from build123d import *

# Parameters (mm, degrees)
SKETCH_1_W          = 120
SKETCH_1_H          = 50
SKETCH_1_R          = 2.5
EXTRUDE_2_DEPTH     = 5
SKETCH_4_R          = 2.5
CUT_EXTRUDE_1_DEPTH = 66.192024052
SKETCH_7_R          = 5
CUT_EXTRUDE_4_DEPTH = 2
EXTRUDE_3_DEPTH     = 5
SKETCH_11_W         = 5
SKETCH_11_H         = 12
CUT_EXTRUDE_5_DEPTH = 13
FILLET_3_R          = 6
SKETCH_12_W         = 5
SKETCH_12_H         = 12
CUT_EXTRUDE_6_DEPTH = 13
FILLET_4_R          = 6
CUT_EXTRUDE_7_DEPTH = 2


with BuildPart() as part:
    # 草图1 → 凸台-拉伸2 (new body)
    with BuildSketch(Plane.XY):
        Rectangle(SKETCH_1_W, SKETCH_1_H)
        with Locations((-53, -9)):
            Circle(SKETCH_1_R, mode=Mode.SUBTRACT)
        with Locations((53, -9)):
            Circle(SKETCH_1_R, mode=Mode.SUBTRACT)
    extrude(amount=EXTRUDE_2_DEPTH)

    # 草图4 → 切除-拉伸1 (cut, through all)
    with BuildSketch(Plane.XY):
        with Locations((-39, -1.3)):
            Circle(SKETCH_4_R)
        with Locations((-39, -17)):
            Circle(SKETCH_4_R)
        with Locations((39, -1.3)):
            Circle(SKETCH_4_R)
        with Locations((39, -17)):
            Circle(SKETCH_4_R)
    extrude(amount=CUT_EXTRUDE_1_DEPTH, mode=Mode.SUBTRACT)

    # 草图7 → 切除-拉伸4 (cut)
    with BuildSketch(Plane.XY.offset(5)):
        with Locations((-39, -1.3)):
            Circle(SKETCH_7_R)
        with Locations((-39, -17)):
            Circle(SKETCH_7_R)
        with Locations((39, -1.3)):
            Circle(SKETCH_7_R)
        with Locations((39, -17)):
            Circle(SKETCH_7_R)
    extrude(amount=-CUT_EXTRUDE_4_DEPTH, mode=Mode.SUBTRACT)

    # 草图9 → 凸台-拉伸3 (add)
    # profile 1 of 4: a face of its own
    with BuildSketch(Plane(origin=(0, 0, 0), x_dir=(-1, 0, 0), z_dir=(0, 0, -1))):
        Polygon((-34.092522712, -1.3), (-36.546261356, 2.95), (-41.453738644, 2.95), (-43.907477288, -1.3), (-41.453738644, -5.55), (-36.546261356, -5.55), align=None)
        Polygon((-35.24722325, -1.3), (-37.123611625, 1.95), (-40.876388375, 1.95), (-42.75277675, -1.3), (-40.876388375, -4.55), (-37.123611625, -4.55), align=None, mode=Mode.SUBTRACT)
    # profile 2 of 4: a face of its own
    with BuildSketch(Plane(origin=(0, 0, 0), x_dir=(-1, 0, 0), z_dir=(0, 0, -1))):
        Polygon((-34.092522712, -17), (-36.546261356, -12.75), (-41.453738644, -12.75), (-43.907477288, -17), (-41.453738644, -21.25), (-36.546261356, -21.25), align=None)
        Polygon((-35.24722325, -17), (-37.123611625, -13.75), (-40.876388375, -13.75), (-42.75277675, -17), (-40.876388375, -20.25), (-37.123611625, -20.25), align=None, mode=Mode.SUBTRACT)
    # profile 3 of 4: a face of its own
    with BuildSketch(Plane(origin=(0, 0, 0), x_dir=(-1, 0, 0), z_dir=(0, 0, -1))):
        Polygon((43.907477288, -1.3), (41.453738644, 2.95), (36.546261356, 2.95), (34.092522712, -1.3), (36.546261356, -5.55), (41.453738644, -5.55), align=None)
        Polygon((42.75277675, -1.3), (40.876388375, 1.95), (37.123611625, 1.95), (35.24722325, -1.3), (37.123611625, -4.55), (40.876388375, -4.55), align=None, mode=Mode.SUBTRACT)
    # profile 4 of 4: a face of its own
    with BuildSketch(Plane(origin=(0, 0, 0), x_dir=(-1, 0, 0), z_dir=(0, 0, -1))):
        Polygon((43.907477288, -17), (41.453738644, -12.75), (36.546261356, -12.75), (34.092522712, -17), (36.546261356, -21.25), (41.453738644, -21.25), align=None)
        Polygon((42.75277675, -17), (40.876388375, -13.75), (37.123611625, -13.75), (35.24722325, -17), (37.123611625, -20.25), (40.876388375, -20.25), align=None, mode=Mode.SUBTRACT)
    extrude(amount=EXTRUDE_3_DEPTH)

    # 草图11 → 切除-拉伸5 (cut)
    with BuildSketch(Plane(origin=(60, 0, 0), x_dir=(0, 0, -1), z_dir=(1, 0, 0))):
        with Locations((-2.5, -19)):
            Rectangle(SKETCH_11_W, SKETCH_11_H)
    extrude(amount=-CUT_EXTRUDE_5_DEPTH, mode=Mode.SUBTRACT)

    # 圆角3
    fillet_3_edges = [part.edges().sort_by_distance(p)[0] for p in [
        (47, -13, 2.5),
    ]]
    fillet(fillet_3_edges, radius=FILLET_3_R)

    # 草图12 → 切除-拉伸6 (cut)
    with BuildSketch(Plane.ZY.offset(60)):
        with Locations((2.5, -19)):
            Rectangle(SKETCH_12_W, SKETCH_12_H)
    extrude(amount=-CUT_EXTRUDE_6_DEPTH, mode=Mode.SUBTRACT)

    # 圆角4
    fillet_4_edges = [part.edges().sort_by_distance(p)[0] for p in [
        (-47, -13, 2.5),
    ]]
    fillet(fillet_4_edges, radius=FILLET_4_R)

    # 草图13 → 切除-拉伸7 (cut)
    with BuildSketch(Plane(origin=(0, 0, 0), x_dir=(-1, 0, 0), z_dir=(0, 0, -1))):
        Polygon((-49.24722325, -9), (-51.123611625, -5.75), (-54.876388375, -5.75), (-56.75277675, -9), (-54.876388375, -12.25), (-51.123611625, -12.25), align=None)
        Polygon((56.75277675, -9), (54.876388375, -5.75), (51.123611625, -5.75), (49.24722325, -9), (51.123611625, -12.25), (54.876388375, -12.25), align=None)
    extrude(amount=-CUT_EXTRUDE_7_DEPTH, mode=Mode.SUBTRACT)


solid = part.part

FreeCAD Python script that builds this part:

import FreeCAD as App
import Part
import Sketcher
Q = App.Units.Quantity


def edges_at(feature, points):
    """Names of the edges that pass closest to the given points."""
    edges = feature.Shape.Edges
    near = lambda p: min(range(len(edges)), key=lambda i: edges[i].distToShape(Part.Vertex(*p))[0])
    return sorted({f"Edge{near(p) + 1}" for p in points})

doc = App.newDocument("Part")
params = doc.addObject("Spreadsheet::Sheet", "Params")
for row, (alias, value) in enumerate([
    ("sketch1_diameter", "5 mm"),
    ("sketch1_width", "120 mm"),
    ("sketch1_height", "50 mm"),
    ("pad1_length", "5 mm"),
    ("sketch2_diameter", "5 mm"),
    ("sketch3_diameter", "10 mm"),
    ("pocket2_length", "2 mm"),
    ("pad2_length", "5 mm"),
    ("sketch5_width", "12 mm"),
    ("sketch5_height", "5 mm"),
    ("pocket3_length", "13 mm"),
    ("fillet_radius", "6 mm"),
    ("sketch6_width", "12 mm"),
    ("sketch6_height", "5 mm"),
    ("pocket4_length", "13 mm"),
    ("fillet2_radius", "6 mm"),
    ("pocket5_length", "2 mm"),
], start=1):
    params.set(f"A{row}", alias)
    params.set(f"B{row}", "=" + value)
    params.setAlias(f"B{row}", alias)

body = doc.addObject("PartDesign::Body", "Body")

# Sketch on XY plane
sketch1 = doc.addObject("Sketcher::SketchObject", "Sketch")
body.addObject(sketch1)
sketch1.AttachmentSupport = (doc.XY_Plane, [""])
sketch1.MapMode = "FlatFace"
sketch1.addGeometry(Part.LineSegment(App.Vector(-60, 25, 0), App.Vector(-60, -25, 0)), False)
sketch1.addGeometry(Part.LineSegment(App.Vector(-60, -25, 0), App.Vector(60, -25, 0)), False)
sketch1.addGeometry(Part.LineSegment(App.Vector(60, -25, 0), App.Vector(60, 25, 0)), False)
sketch1.addGeometry(Part.LineSegment(App.Vector(60, 25, 0), App.Vector(-60, 25, 0)), False)
sketch1.addGeometry(Part.Circle(App.Vector(-53, -9, 0), App.Vector(0, 0, 1), 2.5), False)
sketch1.addGeometry(Part.Circle(App.Vector(53, -9, 0), App.Vector(0, 0, 1), 2.5), False)
sketch1.addConstraint(Sketcher.Constraint("Coincident", 0, 2, 1, 1))
sketch1.addConstraint(Sketcher.Constraint("Coincident", 1, 2, 2, 1))
sketch1.addConstraint(Sketcher.Constraint("Coincident", 2, 2, 3, 1))
sketch1.addConstraint(Sketcher.Constraint("Coincident", 3, 2, 0, 1))
sketch1.addConstraint(Sketcher.Constraint("Vertical", 0))
sketch1.addConstraint(Sketcher.Constraint("Horizontal", 1))
sketch1.addConstraint(Sketcher.Constraint("Vertical", 2))
sketch1.addConstraint(Sketcher.Constraint("Horizontal", 3))
sketch1.addConstraint(Sketcher.Constraint("Equal", 4, 5))
sketch1.addConstraint(Sketcher.Constraint("Symmetric", 0, 2, 2, 2, -1, 1))
sketch1.addConstraint(Sketcher.Constraint("Symmetric", 4, 3, 5, 3, -2))
sketch1.addConstraint(Sketcher.Constraint("Diameter", 4, 5.0))
sketch1.addConstraint(Sketcher.Constraint("DistanceX", 1, 1, 1, 2, 120.0))
sketch1.addConstraint(Sketcher.Constraint("DistanceY", 0, 2, 0, 1, 50.0))
sketch1.addConstraint(Sketcher.Constraint("DistanceX", 4, 3, -1, 1, 53.0))
sketch1.addConstraint(Sketcher.Constraint("DistanceY", 4, 3, -1, 1, 9.0))
sketch1.setExpression("Constraints[11]", "Params.sketch1_diameter")
sketch1.setExpression("Constraints[12]", "Params.sketch1_width")
sketch1.setExpression("Constraints[13]", "Params.sketch1_height")
pad1 = doc.addObject("PartDesign::Pad", "Pad")
body.addObject(pad1)
pad1.Profile = sketch1
pad1.setExpression("Length", "Params.pad1_length")

# Sketch on XY plane
sketch2 = doc.addObject("Sketcher::SketchObject", "Sketch001")
body.addObject(sketch2)
sketch2.AttachmentSupport = (doc.XY_Plane, [""])
sketch2.MapMode = "FlatFace"
sketch2.addGeometry(Part.Circle(App.Vector(-39, -1.3, 0), App.Vector(0, 0, 1), 2.5), False)
sketch2.addGeometry(Part.Circle(App.Vector(-39, -17, 0), App.Vector(0, 0, 1), 2.5), False)
sketch2.addGeometry(Part.Circle(App.Vector(39, -1.3, 0), App.Vector(0, 0, 1), 2.5), False)
sketch2.addGeometry(Part.Circle(App.Vector(39, -17, 0), App.Vector(0, 0, 1), 2.5), False)
sketch2.addConstraint(Sketcher.Constraint("Equal", 0, 1))
sketch2.addConstraint(Sketcher.Constraint("Equal", 1, 2))
sketch2.addConstraint(Sketcher.Constraint("Equal", 2, 3))
sketch2.addConstraint(Sketcher.Constraint("Symmetric", 0, 3, 2, 3, -2))
sketch2.addConstraint(Sketcher.Constraint("Symmetric", 1, 3, 3, 3, -2))
sketch2.addConstraint(Sketcher.Constraint("Vertical", 0, 3, 1, 3))
sketch2.addConstraint(Sketcher.Constraint("Diameter", 0, 5.0))
sketch2.addConstraint(Sketcher.Constraint("DistanceX", 0, 3, -1, 1, 39.0))
sketch2.addConstraint(Sketcher.Constraint("DistanceY", 1, 3, -1, 1, 17.0))
sketch2.addConstraint(Sketcher.Constraint("DistanceY", 0, 3, -1, 1, 1.3))
sketch2.setExpression("Constraints[6]", "Params.sketch2_diameter")
pocket1 = doc.addObject("PartDesign::Pocket", "Pocket")
body.addObject(pocket1)
pocket1.Profile = sketch2
pocket1.Type = "ThroughAll"
pocket1.Reversed = True

# Sketch on XY plane
sketch3 = doc.addObject("Sketcher::SketchObject", "Sketch002")
body.addObject(sketch3)
sketch3.AttachmentSupport = (doc.XY_Plane, [""])
sketch3.MapMode = "FlatFace"
sketch3.AttachmentOffset = App.Placement(App.Vector(0, 0, 5), App.Rotation())
sketch3.addGeometry(Part.Circle(App.Vector(-39, -1, 0), App.Vector(0, 0, 1), 5), False)
sketch3.addGeometry(Part.Circle(App.Vector(-39, -17, 0), App.Vector(0, 0, 1), 5), False)
sketch3.addGeometry(Part.Circle(App.Vector(39, -1, 0), App.Vector(0, 0, 1), 5), False)
sketch3.addGeometry(Part.Circle(App.Vector(39, -17, 0), App.Vector(0, 0, 1), 5), False)
sketch3.addConstraint(Sketcher.Constraint("Equal", 0, 1))
sketch3.addConstraint(Sketcher.Constraint("Equal", 1, 2))
sketch3.addConstraint(Sketcher.Constraint("Equal", 2, 3))
sketch3.addConstraint(Sketcher.Constraint("Symmetric", 0, 3, 2, 3, -2))
sketch3.addConstraint(Sketcher.Constraint("Symmetric", 1, 3, 3, 3, -2))
sketch3.addConstraint(Sketcher.Constraint("Vertical", 0, 3, 1, 3))
sketch3.addConstraint(Sketcher.Constraint("Diameter", 0, 10.0))
sketch3.addConstraint(Sketcher.Constraint("DistanceX", 0, 3, -1, 1, 39.0))
sketch3.addConstraint(Sketcher.Constraint("DistanceY", 1, 3, -1, 1, 17.0))
sketch3.addConstraint(Sketcher.Constraint("DistanceY", 0, 3, -1, 1, 1.3))
sketch3.setExpression("Constraints[6]", "Params.sketch3_diameter")
pocket2 = doc.addObject("PartDesign::Pocket", "Pocket001")
body.addObject(pocket2)
pocket2.Profile = sketch3
pocket2.setExpression("Length", "Params.pocket2_length")

# Sketch on XY plane
sketch4 = doc.addObject("Sketcher::SketchObject", "Sketch003")
body.addObject(sketch4)
sketch4.AttachmentSupport = (doc.XY_Plane, [""])
sketch4.MapMode = "FlatFace"
sketch4.addGeometry(Part.LineSegment(App.Vector(34.1, -1.3, 0), App.Vector(36.5, 3, 0)), False)
sketch4.addGeometry(Part.LineSegment(App.Vector(36.5, 3, 0), App.Vector(41.5, 3, 0)), False)
sketch4.addGeometry(Part.LineSegment(App.Vector(41.5, 3, 0), App.Vector(43.9, -1.3, 0)), False)
sketch4.addGeometry(Part.LineSegment(App.Vector(43.9, -1.3, 0), App.Vector(41.5, -5.5, 0)), False)
sketch4.addGeometry(Part.LineSegment(App.Vector(41.5, -5.5, 0), App.Vector(36.5, -5.5, 0)), False)
sketch4.addGeometry(Part.LineSegment(App.Vector(36.5, -5.5, 0), App.Vector(34.1, -1.3, 0)), False)
sketch4.addGeometry(Part.LineSegment(App.Vector(37.1, 1.9, 0), App.Vector(35.2, -1.3, 0)), False)
sketch4.addGeometry(Part.LineSegment(App.Vector(35.2, -1.3, 0), App.Vector(37.1, -4.5, 0)), False)
sketch4.addGeometry(Part.LineSegment(App.Vector(37.1, -4.5, 0), App.Vector(40.9, -4.5, 0)), False)
sketch4.addGeometry(Part.LineSegment(App.Vector(40.9, -4.5, 0), App.Vector(42.8, -1.3, 0)), False)
sketch4.addGeometry(Part.LineSegment(App.Vector(42.8, -1.3, 0), App.Vector(40.9, 1.9, 0)), False)
sketch4.addGeometry(Part.LineSegment(App.Vector(40.9, 1.9, 0), App.Vector(37.1, 1.9, 0)), False)
sketch4.addGeometry(Part.LineSegment(App.Vector(34.1, -17, 0), App.Vector(36.5, -12.8, 0)), False)
sketch4.addGeometry(Part.LineSegment(App.Vector(36.5, -12.8, 0), App.Vector(41.5, -12.8, 0)), False)
sketch4.addGeometry(Part.LineSegment(App.Vector(41.5, -12.8, 0), App.Vector(43.9, -17, 0)), False)
sketch4.addGeometry(Part.LineSegment(App.Vector(43.9, -17, 0), App.Vector(41.5, -21.2, 0)), False)
sketch4.addGeometry(Part.LineSegment(App.Vector(41.5, -21.2, 0), App.Vector(36.5, -21.2, 0)), False)
sketch4.addGeometry(Part.LineSegment(App.Vector(36.5, -21.2, 0), App.Vector(34.1, -17, 0)), False)
sketch4.addGeometry(Part.LineSegment(App.Vector(37.1, -13.8, 0), App.Vector(35.2, -17, 0)), False)
sketch4.addGeometry(Part.LineSegment(App.Vector(35.2, -17, 0), App.Vector(37.1, -20.2, 0)), False)
sketch4.addGeometry(Part.LineSegment(App.Vector(37.1, -20.2, 0), App.Vector(40.9, -20.2, 0)), False)
sketch4.addGeometry(Part.LineSegment(App.Vector(40.9, -20.2, 0), App.Vector(42.8, -17, 0)), False)
sketch4.addGeometry(Part.LineSegment(App.Vector(42.8, -17, 0), App.Vector(40.9, -13.8, 0)), False)
sketch4.addGeometry(Part.LineSegment(App.Vector(40.9, -13.8, 0), App.Vector(37.1, -13.8, 0)), False)
sketch4.addGeometry(Part.LineSegment(App.Vector(-43.9, -1.3, 0), App.Vector(-41.5, 3, 0)), False)
sketch4.addGeometry(Part.LineSegment(App.Vector(-41.5, 3, 0), App.Vector(-36.5, 3, 0)), False)
sketch4.addGeometry(Part.LineSegment(App.Vector(-36.5, 3, 0), App.Vector(-34.1, -1.3, 0)), False)
sketch4.addGeometry(Part.LineSegment(App.Vector(-34.1, -1.3, 0), App.Vector(-36.5, -5.5, 0)), False)
sketch4.addGeometry(Part.LineSegment(App.Vector(-36.5, -5.5, 0), App.Vector(-41.5, -5.5, 0)), False)
sketch4.addGeometry(Part.LineSegment(App.Vector(-41.5, -5.5, 0), App.Vector(-43.9, -1.3, 0)), False)
sketch4.addGeometry(Part.LineSegment(App.Vector(-40.9, 1.9, 0), App.Vector(-42.8, -1.3, 0)), False)
sketch4.addGeometry(Part.LineSegment(App.Vector(-42.8, -1.3, 0), App.Vector(-40.9, -4.5, 0)), False)
sketch4.addGeometry(Part.LineSegment(App.Vector(-40.9, -4.5, 0), App.Vector(-37.1, -4.5, 0)), False)
sketch4.addGeometry(Part.LineSegment(App.Vector(-37.1, -4.5, 0), App.Vector(-35.2, -1.3, 0)), False)
sketch4.addGeometry(Part.LineSegment(App.Vector(-35.2, -1.3, 0), App.Vector(-37.1, 1.9, 0)), False)
sketch4.addGeometry(Part.LineSegment(App.Vector(-37.1, 1.9, 0), App.Vector(-40.9, 1.9, 0)), False)
sketch4.addGeometry(Part.LineSegment(App.Vector(-43.9, -17, 0), App.Vector(-41.5, -12.8, 0)), False)
sketch4.addGeometry(Part.LineSegment(App.Vector(-41.5, -12.8, 0), App.Vector(-36.5, -12.8, 0)), False)
sketch4.addGeometry(Part.LineSegment(App.Vector(-36.5, -12.8, 0), App.Vector(-34.1, -17, 0)), False)
sketch4.addGeometry(Part.LineSegment(App.Vector(-34.1, -17, 0), App.Vector(-36.5, -21.2, 0)), False)
sketch4.addGeometry(Part.LineSegment(App.Vector(-36.5, -21.2, 0), App.Vector(-41.5, -21.2, 0)), False)
sketch4.addGeometry(Part.LineSegment(App.Vector(-41.5, -21.2, 0), App.Vector(-43.9, -17, 0)), False)
sketch4.addGeometry(Part.LineSegment(App.Vector(-40.9, -13.8, 0), App.Vector(-42.8, -17, 0)), False)
sketch4.addGeometry(Part.LineSegment(App.Vector(-42.8, -17, 0), App.Vector(-40.9, -20.2, 0)), False)
sketch4.addGeometry(Part.LineSegment(App.Vector(-40.9, -20.2, 0), App.Vector(-37.1, -20.2, 0)), False)
sketch4.addGeometry(Part.LineSegment(App.Vector(-37.1, -20.2, 0), App.Vector(-35.2, -17, 0)), False)
sketch4.addGeometry(Part.LineSegment(App.Vector(-35.2, -17, 0), App.Vector(-37.1, -13.8, 0)), False)
sketch4.addGeometry(Part.LineSegment(App.Vector(-37.1, -13.8, 0), App.Vector(-40.9, -13.8, 0)), False)
sketch4.addConstraint(Sketcher.Constraint("Coincident", 0, 2, 1, 1))
sketch4.addConstraint(Sketcher.Constraint("Coincident", 1, 2, 2, 1))
sketch4.addConstraint(Sketcher.Constraint("Coincident", 2, 2, 3, 1))
sketch4.addConstraint(Sketcher.Constraint("Coincident", 3, 2, 4, 1))
sketch4.addConstraint(Sketcher.Constraint("Coincident", 4, 2, 5, 1))
sketch4.addConstraint(Sketcher.Constraint("Coincident", 5, 2, 0, 1))
sketch4.addConstraint(Sketcher.Constraint("Coincident", 6, 2, 7, 1))
sketch4.addConstraint(Sketcher.Constraint("Coincident", 7, 2, 8, 1))
sketch4.addConstraint(Sketcher.Constraint("Coincident", 8, 2, 9, 1))
sketch4.addConstraint(Sketcher.Constraint("Coincident", 9, 2, 10, 1))
sketch4.addConstraint(Sketcher.Constraint("Coincident", 10, 2, 11, 1))
sketch4.addConstraint(Sketcher.Constraint("Coincident", 11, 2, 6, 1))
sketch4.addConstraint(Sketcher.Constraint("Coincident", 12, 2, 13, 1))
sketch4.addConstraint(Sketcher.Constraint("Coincident", 13, 2, 14, 1))
sketch4.addConstraint(Sketcher.Constraint("Coincident", 14, 2, 15, 1))
sketch4.addConstraint(Sketcher.Constraint("Coincident", 15, 2, 16, 1))
sketch4.addConstraint(Sketcher.Constraint("Coincident", 16, 2, 17, 1))
sketch4.addConstraint(Sketcher.Constraint("Coincident", 17, 2, 12, 1))
sketch4.addConstraint(Sketcher.Constraint("Coincident", 18, 2, 19, 1))
sketch4.addConstraint(Sketcher.Constraint("Coincident", 19, 2, 20, 1))
sketch4.addConstraint(Sketcher.Constraint("Coincident", 20, 2, 21, 1))
sketch4.addConstraint(Sketcher.Constraint("Coincident", 21, 2, 22, 1))
sketch4.addConstraint(Sketcher.Constraint("Coincident", 22, 2, 23, 1))
sketch4.addConstraint(Sketcher.Constraint("Coincident", 23, 2, 18, 1))
sketch4.addConstraint(Sketcher.Constraint("Coincident", 24, 2, 25, 1))
sketch4.addConstraint(Sketcher.Constraint("Coincident", 25, 2, 26, 1))
sketch4.addConstraint(Sketcher.Constraint("Coincident", 26, 2, 27, 1))
sketch4.addConstraint(Sketcher.Constraint("Coincident", 27, 2, 28, 1))
sketch4.addConstraint(Sketcher.Constraint("Coincident", 28, 2, 29, 1))
sketch4.addConstraint(Sketcher.Constraint("Coincident", 29, 2, 24, 1))
sketch4.addConstraint(Sketcher.Constraint("Coincident", 30, 2, 31, 1))
sketch4.addConstraint(Sketcher.Constraint("Coincident", 31, 2, 32, 1))
sketch4.addConstraint(Sketcher.Constraint("Coincident", 32, 2, 33, 1))
sketch4.addConstraint(Sketcher.Constraint("Coincident", 33, 2, 34, 1))
sketch4.addConstraint(Sketcher.Constraint("Coincident", 34, 2, 35, 1))
sketch4.addConstraint(Sketcher.Constraint("Coincident", 35, 2, 30, 1))
sketch4.addConstraint(Sketcher.Constraint("Coincident", 36, 2, 37, 1))
sketch4.addConstraint(Sketcher.Constraint("Coincident", 37, 2, 38, 1))
sketch4.addConstraint(Sketcher.Constraint("Coincident", 38, 2, 39, 1))
sketch4.addConstraint(Sketcher.Constraint("Coincident", 39, 2, 40, 1))
sketch4.addConstraint(Sketcher.Constraint("Coincident", 40, 2, 41, 1))
sketch4.addConstraint(Sketcher.Constraint("Coincident", 41, 2, 36, 1))
sketch4.addConstraint(Sketcher.Constraint("Coincident", 42, 2, 43, 1))
sketch4.addConstraint(Sketcher.Constraint("Coincident", 43, 2, 44, 1))
sketch4.addConstraint(Sketcher.Constraint("Coincident", 44, 2, 45, 1))
sketch4.addConstraint(Sketcher.Constraint("Coincident", 45, 2, 46, 1))
sketch4.addConstraint(Sketcher.Constraint("Coincident", 46, 2, 47, 1))
sketch4.addConstraint(Sketcher.Constraint("Coincident", 47, 2, 42, 1))
sketch4.addConstraint(Sketcher.Constraint("Horizontal", 1))
sketch4.addConstraint(Sketcher.Constraint("Horizontal", 4))
sketch4.addConstraint(Sketcher.Constraint("Horizontal", 8))
sketch4.addConstraint(Sketcher.Constraint("Horizontal", 11))
sketch4.addConstraint(Sketcher.Constraint("Horizontal", 13))
sketch4.addConstraint(Sketcher.Constraint("Horizontal", 16))
sketch4.addConstraint(Sketcher.Constraint("Horizontal", 20))
sketch4.addConstraint(Sketcher.Constraint("Horizontal", 23))
sketch4.addConstraint(Sketcher.Constraint("Horizontal", 25))
sketch4.addConstraint(Sketcher.Constraint("Horizontal", 28))
sketch4.addConstraint(Sketcher.Constraint("Horizontal", 32))
sketch4.addConstraint(Sketcher.Constraint("Horizontal", 35))
sketch4.addConstraint(Sketcher.Constraint("Horizontal", 37))
sketch4.addConstraint(Sketcher.Constraint("Horizontal", 40))
sketch4.addConstraint(Sketcher.Constraint("Horizontal", 44))
sketch4.addConstraint(Sketcher.Constraint("Horizontal", 47))
sketch4.addConstraint(Sketcher.Constraint("Symmetric", 1, 2, 24, 2, -2))
sketch4.addConstraint(Sketcher.Constraint("Symmetric", 5, 2, 26, 2, -2))
sketch4.addConstraint(Sketcher.Constraint("Symmetric", 4, 2, 27, 2, -2))
sketch4.addConstraint(Sketcher.Constraint("Symmetric", 2, 2, 29, 2, -2))
sketch4.addConstraint(Sketcher.Constraint("Symmetric", 9, 2, 30, 2, -2))
sketch4.addConstraint(Sketcher.Constraint("Symmetric", 8, 2, 31, 2, -2))
sketch4.addConstraint(Sketcher.Constraint("Symmetric", 6, 2, 33, 2, -2))
sketch4.addConstraint(Sketcher.Constraint("Symmetric", 11, 2, 34, 2, -2))
sketch4.addConstraint(Sketcher.Constraint("Symmetric", 13, 2, 36, 2, -2))
sketch4.addConstraint(Sketcher.Constraint("Symmetric", 17, 2, 38, 2, -2))
sketch4.addConstraint(Sketcher.Constraint("Symmetric", 16, 2, 39, 2, -2))
sketch4.addConstraint(Sketcher.Constraint("Symmetric", 14, 2, 41, 2, -2))
sketch4.addConstraint(Sketcher.Constraint("Symmetric", 21, 2, 42, 2, -2))
sketch4.addConstraint(Sketcher.Constraint("Symmetric", 20, 2, 43, 2, -2))
sketch4.addConstraint(Sketcher.Constraint("Symmetric", 18, 2, 45, 2, -2))
sketch4.addConstraint(Sketcher.Constraint("Symmetric", 23, 2, 46, 2, -2))
sketch4.addConstraint(Sketcher.Constraint("Parallel", 0, 3))
sketch4.addConstraint(Sketcher.Constraint("Parallel", 2, 5))
sketch4.addConstraint(Sketcher.Constraint("Parallel", 3, 6))
sketch4.addConstraint(Sketcher.Constraint("Parallel", 5, 7))
sketch4.addConstraint(Sketcher.Constraint("Parallel", 6, 9))
sketch4.addConstraint(Sketcher.Constraint("Parallel", 7, 10))
sketch4.addConstraint(Sketcher.Constraint("Parallel", 9, 12))
sketch4.addConstraint(Sketcher.Constraint("Parallel", 10, 14))
sketch4.addConstraint(Sketcher.Constraint("Parallel", 12, 15))
sketch4.addConstraint(Sketcher.Constraint("Parallel", 14, 17))
sketch4.addConstraint(Sketcher.Constraint("Parallel", 15, 18))
sketch4.addConstraint(Sketcher.Constraint("Parallel", 17, 19))
sketch4.addConstraint(Sketcher.Constraint("Parallel", 18, 21))
sketch4.addConstraint(Sketcher.Constraint("Parallel", 19, 22))
sketch4.addConstraint(Sketcher.Constraint("Parallel", 21, 24))
sketch4.addConstraint(Sketcher.Constraint("Parallel", 22, 26))
sketch4.addConstraint(Sketcher.Constraint("Parallel", 26, 29))
sketch4.addConstraint(Sketcher.Constraint("Parallel", 27, 30))
sketch4.addConstraint(Sketcher.Constraint("Parallel", 30, 33))
sketch4.addConstraint(Sketcher.Constraint("Parallel", 34, 38))
sketch4.addConstraint(Sketcher.Constraint("Parallel", 38, 41))
sketch4.addConstraint(Sketcher.Constraint("Parallel", 39, 42))
sketch4.addConstraint(Sketcher.Constraint("Parallel", 42, 45))
sketch4.addConstraint(Sketcher.Constraint("Horizontal", 2, 2, 5, 2))
sketch4.addConstraint(Sketcher.Constraint("Horizontal", 5, 2, 6, 2))
sketch4.addConstraint(Sketcher.Constraint("Horizontal", 6, 2, 9, 2))
sketch4.addConstraint(Sketcher.Constraint("Horizontal", 14, 2, 17, 2))
sketch4.addConstraint(Sketcher.Constraint("Horizontal", 17, 2, 18, 2))
sketch4.addConstraint(Sketcher.Constraint("Horizontal", 18, 2, 21, 2))
sketch4.addConstraint(Sketcher.Constraint("Vertical", 1, 2, 3, 2))
sketch4.addConstraint(Sketcher.Constraint("Vertical", 8, 2, 10, 2))
sketch4.addConstraint(Sketcher.Constraint("Vertical", 4, 2, 12, 2))
sketch4.addConstraint(Sketcher.Constraint("Vertical", 3, 2, 13, 2))
sketch4.addConstraint(Sketcher.Constraint("Vertical", 2, 2, 14, 2))
sketch4.addConstraint(Sketcher.Constraint("Vertical", 13, 2, 15, 2))
sketch4.addConstraint(Sketcher.Constraint("Vertical", 6, 2, 18, 2))
sketch4.addConstraint(Sketcher.Constraint("Vertical", 11, 2, 19, 2))
sketch4.addConstraint(Sketcher.Constraint("Vertical", 10, 2, 20, 2))
sketch4.addConstraint(Sketcher.Constraint("Vertical", 20, 2, 22, 2))
sketch4.addConstraint(Sketcher.Constraint("Angle", 0, Q("60 deg")))
sketch4.addConstraint(Sketcher.Constraint("DistanceY", 14, 2, -1, 1, 17.0))
sketch4.addConstraint(Sketcher.Constraint("DistanceY", 4, 2, 7, 2, 1.0))
sketch4.addConstraint(Sketcher.Constraint("DistanceX", 24, 2, 0, 2, 78.0))
sketch4.addConstraint(Sketcher.Constraint("DistanceY", 2, 2, -1, 1, 1.3))
sketch4.addConstraint(Sketcher.Constraint("DistanceY", 3, 2, 1, 2, 8.5))
sketch4.addConstraint(Sketcher.Constraint("DistanceX", 5, 2, 6, 2, 1.154701))
sketch4.addConstraint(Sketcher.Constraint("DistanceX", 9, 2, 2, 2, 1.154701))
sketch4.addConstraint(Sketcher.Constraint("DistanceX", 1, 1, 1, 2, 4.907477))
pad2 = doc.addObject("PartDesign::Pad", "Pad001")
body.addObject(pad2)
pad2.Profile = sketch4
pad2.setExpression("Length", "Params.pad2_length")
pad2.Reversed = True

# Sketch on YZ plane
sketch5 = doc.addObject("Sketcher::SketchObject", "Sketch004")
body.addObject(sketch5)
sketch5.AttachmentSupport = (doc.YZ_Plane, [""])
sketch5.MapMode = "FlatFace"
sketch5.AttachmentOffset = App.Placement(App.Vector(0, 0, 60), App.Rotation())
sketch5.addGeometry(Part.LineSegment(App.Vector(-13, 5, 0), App.Vector(-25, 5, 0)), False)
sketch5.addGeometry(Part.LineSegment(App.Vector(-25, 5, 0), App.Vector(-25, 0, 0)), False)
sketch5.addGeometry(Part.LineSegment(App.Vector(-25, 0, 0), App.Vector(-13, 0, 0)), False)
sketch5.addGeometry(Part.LineSegment(App.Vector(-13, 0, 0), App.Vector(-13, 5, 0)), False)
sketch5.addConstraint(Sketcher.Constraint("Coincident", 0, 2, 1, 1))
sketch5.addConstraint(Sketcher.Constraint("Coincident", 1, 2, 2, 1))
sketch5.addConstraint(Sketcher.Constraint("Coincident", 2, 2, 3, 1))
sketch5.addConstraint(Sketcher.Constraint("Coincident", 3, 2, 0, 1))
sketch5.addConstraint(Sketcher.Constraint("Horizontal", 0))
sketch5.addConstraint(Sketcher.Constraint("Vertical", 1))
sketch5.addConstraint(Sketcher.Constraint("Horizontal", 2))
sketch5.addConstraint(Sketcher.Constraint("Vertical", 3))
sketch5.addConstraint(Sketcher.Constraint("PointOnObject", 1, 2, -1))
sketch5.addConstraint(Sketcher.Constraint("DistanceX", 0, 2, 0, 1, 12.0))
sketch5.addConstraint(Sketcher.Constraint("DistanceY", 1, 2, 1, 1, 5.0))
sketch5.addConstraint(Sketcher.Constraint("DistanceX", 0, 2, -1, 1, 25.0))
sketch5.setExpression("Constraints[9]", "Params.sketch5_width")
sketch5.setExpression("Constraints[10]", "Params.sketch5_height")
pocket3 = doc.addObject("PartDesign::Pocket", "Pocket002")
body.addObject(pocket3)
pocket3.Profile = sketch5
pocket3.setExpression("Length", "Params.pocket3_length")
doc.recompute()

fillet = doc.addObject("PartDesign::Fillet", "Fillet")
body.addObject(fillet)
fillet.Base = (pocket3, edges_at(pocket3, [(47, -13, 2.5)]))
fillet.setExpression("Radius", "Params.fillet_radius")

# Sketch on YZ plane
sketch6 = doc.addObject("Sketcher::SketchObject", "Sketch005")
body.addObject(sketch6)
sketch6.AttachmentSupport = (doc.YZ_Plane, [""])
sketch6.MapMode = "FlatFace"
sketch6.AttachmentOffset = App.Placement(App.Vector(0, 0, -60), App.Rotation())
sketch6.addGeometry(Part.LineSegment(App.Vector(-13, 0, 0), App.Vector(-25, 0, 0)), False)
sketch6.addGeometry(Part.LineSegment(App.Vector(-25, 0, 0), App.Vector(-25, 5, 0)), False)
sketch6.addGeometry(Part.LineSegment(App.Vector(-25, 5, 0), App.Vector(-13, 5, 0)), False)
sketch6.addGeometry(Part.LineSegment(App.Vector(-13, 5, 0), App.Vector(-13, 0, 0)), False)
sketch6.addConstraint(Sketcher.Constraint("Coincident", 0, 2, 1, 1))
sketch6.addConstraint(Sketcher.Constraint("Coincident", 1, 2, 2, 1))
sketch6.addConstraint(Sketcher.Constraint("Coincident", 2, 2, 3, 1))
sketch6.addConstraint(Sketcher.Constraint("Coincident", 3, 2, 0, 1))
sketch6.addConstraint(Sketcher.Constraint("Horizontal", 0))
sketch6.addConstraint(Sketcher.Constraint("Vertical", 1))
sketch6.addConstraint(Sketcher.Constraint("Horizontal", 2))
sketch6.addConstraint(Sketcher.Constraint("Vertical", 3))
sketch6.addConstraint(Sketcher.Constraint("PointOnObject", 0, 2, -1))
sketch6.addConstraint(Sketcher.Constraint("DistanceX", 0, 2, 0, 1, 12.0))
sketch6.addConstraint(Sketcher.Constraint("DistanceY", 1, 1, 1, 2, 5.0))
sketch6.addConstraint(Sketcher.Constraint("DistanceX", 0, 2, -1, 1, 25.0))
sketch6.setExpression("Constraints[9]", "Params.sketch6_width")
sketch6.setExpression("Constraints[10]", "Params.sketch6_height")
pocket4 = doc.addObject("PartDesign::Pocket", "Pocket003")
body.addObject(pocket4)
pocket4.Profile = sketch6
pocket4.setExpression("Length", "Params.pocket4_length")
pocket4.Reversed = True
doc.recompute()

fillet2 = doc.addObject("PartDesign::Fillet", "Fillet001")
body.addObject(fillet2)
fillet2.Base = (pocket4, edges_at(pocket4, [(-47, -13, 2.5)]))
fillet2.setExpression("Radius", "Params.fillet2_radius")

# Sketch on XY plane
sketch7 = doc.addObject("Sketcher::SketchObject", "Sketch006")
body.addObject(sketch7)
sketch7.AttachmentSupport = (doc.XY_Plane, [""])
sketch7.MapMode = "FlatFace"
sketch7.addGeometry(Part.LineSegment(App.Vector(49.2, -9, 0), App.Vector(51.1, -5.8, 0)), False)
sketch7.addGeometry(Part.LineSegment(App.Vector(51.1, -5.8, 0), App.Vector(54.9, -5.8, 0)), False)
sketch7.addGeometry(Part.LineSegment(App.Vector(54.9, -5.8, 0), App.Vector(56.8, -9, 0)), False)
sketch7.addGeometry(Part.LineSegment(App.Vector(56.8, -9, 0), App.Vector(54.9, -12.2, 0)), False)
sketch7.addGeometry(Part.LineSegment(App.Vector(54.9, -12.2, 0), App.Vector(51.1, -12.2, 0)), False)
sketch7.addGeometry(Part.LineSegment(App.Vector(51.1, -12.2, 0), App.Vector(49.2, -9, 0)), False)
sketch7.addGeometry(Part.LineSegment(App.Vector(-56.8, -9, 0), App.Vector(-54.9, -5.8, 0)), False)
sketch7.addGeometry(Part.LineSegment(App.Vector(-54.9, -5.8, 0), App.Vector(-51.1, -5.8, 0)), False)
sketch7.addGeometry(Part.LineSegment(App.Vector(-51.1, -5.8, 0), App.Vector(-49.2, -9, 0)), False)
sketch7.addGeometry(Part.LineSegment(App.Vector(-49.2, -9, 0), App.Vector(-51.1, -12.2, 0)), False)
sketch7.addGeometry(Part.LineSegment(App.Vector(-51.1, -12.2, 0), App.Vector(-54.9, -12.2, 0)), False)
sketch7.addGeometry(Part.LineSegment(App.Vector(-54.9, -12.2, 0), App.Vector(-56.8, -9, 0)), False)
sketch7.addConstraint(Sketcher.Constraint("Coincident", 0, 2, 1, 1))
sketch7.addConstraint(Sketcher.Constraint("Coincident", 1, 2, 2, 1))
sketch7.addConstraint(Sketcher.Constraint("Coincident", 2, 2, 3, 1))
sketch7.addConstraint(Sketcher.Constraint("Coincident", 3, 2, 4, 1))
sketch7.addConstraint(Sketcher.Constraint("Coincident", 4, 2, 5, 1))
sketch7.addConstraint(Sketcher.Constraint("Coincident", 5, 2, 0, 1))
sketch7.addConstraint(Sketcher.Constraint("Coincident", 6, 2, 7, 1))
sketch7.addConstraint(Sketcher.Constraint("Coincident", 7, 2, 8, 1))
sketch7.addConstraint(Sketcher.Constraint("Coincident", 8, 2, 9, 1))
sketch7.addConstraint(Sketcher.Constraint("Coincident", 9, 2, 10, 1))
sketch7.addConstraint(Sketcher.Constraint("Coincident", 10, 2, 11, 1))
sketch7.addConstraint(Sketcher.Constraint("Coincident", 11, 2, 6, 1))
sketch7.addConstraint(Sketcher.Constraint("Horizontal", 1))
sketch7.addConstraint(Sketcher.Constraint("Horizontal", 4))
sketch7.addConstraint(Sketcher.Constraint("Horizontal", 7))
sketch7.addConstraint(Sketcher.Constraint("Horizontal", 10))
sketch7.addConstraint(Sketcher.Constraint("Symmetric", 1, 2, 6, 2, -2))
sketch7.addConstraint(Sketcher.Constraint("Symmetric", 5, 2, 8, 2, -2))
sketch7.addConstraint(Sketcher.Constraint("Symmetric", 4, 2, 9, 2, -2))
sketch7.addConstraint(Sketcher.Constraint("Symmetric", 2, 2, 11, 2, -2))
sketch7.addConstraint(Sketcher.Constraint("Parallel", 0, 3))
sketch7.addConstraint(Sketcher.Constraint("Parallel", 2, 5))
sketch7.addConstraint(Sketcher.Constraint("Parallel", 3, 6))
sketch7.addConstraint(Sketcher.Constraint("Parallel", 5, 8))
sketch7.addConstraint(Sketcher.Constraint("Parallel", 8, 11))
sketch7.addConstraint(Sketcher.Constraint("Horizontal", 2, 2, 5, 2))
sketch7.addConstraint(Sketcher.Constraint("Vertical", 1, 2, 3, 2))
sketch7.addConstraint(Sketcher.Constraint("Angle", 0, Q("60 deg")))
sketch7.addConstraint(Sketcher.Constraint("DistanceY", 2, 2, -1, 1, 9.0))
sketch7.addConstraint(Sketcher.Constraint("DistanceX", 6, 2, 0, 2, 106.0))
sketch7.addConstraint(Sketcher.Constraint("DistanceY", 3, 2, 1, 2, 6.5))
sketch7.addConstraint(Sketcher.Constraint("DistanceX", 1, 1, 1, 2, 3.752777))
pocket5 = doc.addObject("PartDesign::Pocket", "Pocket004")
body.addObject(pocket5)
pocket5.Profile = sketch7
pocket5.setExpression("Length", "Params.pocket5_length")
pocket5.Reversed = True

doc.recompute()
